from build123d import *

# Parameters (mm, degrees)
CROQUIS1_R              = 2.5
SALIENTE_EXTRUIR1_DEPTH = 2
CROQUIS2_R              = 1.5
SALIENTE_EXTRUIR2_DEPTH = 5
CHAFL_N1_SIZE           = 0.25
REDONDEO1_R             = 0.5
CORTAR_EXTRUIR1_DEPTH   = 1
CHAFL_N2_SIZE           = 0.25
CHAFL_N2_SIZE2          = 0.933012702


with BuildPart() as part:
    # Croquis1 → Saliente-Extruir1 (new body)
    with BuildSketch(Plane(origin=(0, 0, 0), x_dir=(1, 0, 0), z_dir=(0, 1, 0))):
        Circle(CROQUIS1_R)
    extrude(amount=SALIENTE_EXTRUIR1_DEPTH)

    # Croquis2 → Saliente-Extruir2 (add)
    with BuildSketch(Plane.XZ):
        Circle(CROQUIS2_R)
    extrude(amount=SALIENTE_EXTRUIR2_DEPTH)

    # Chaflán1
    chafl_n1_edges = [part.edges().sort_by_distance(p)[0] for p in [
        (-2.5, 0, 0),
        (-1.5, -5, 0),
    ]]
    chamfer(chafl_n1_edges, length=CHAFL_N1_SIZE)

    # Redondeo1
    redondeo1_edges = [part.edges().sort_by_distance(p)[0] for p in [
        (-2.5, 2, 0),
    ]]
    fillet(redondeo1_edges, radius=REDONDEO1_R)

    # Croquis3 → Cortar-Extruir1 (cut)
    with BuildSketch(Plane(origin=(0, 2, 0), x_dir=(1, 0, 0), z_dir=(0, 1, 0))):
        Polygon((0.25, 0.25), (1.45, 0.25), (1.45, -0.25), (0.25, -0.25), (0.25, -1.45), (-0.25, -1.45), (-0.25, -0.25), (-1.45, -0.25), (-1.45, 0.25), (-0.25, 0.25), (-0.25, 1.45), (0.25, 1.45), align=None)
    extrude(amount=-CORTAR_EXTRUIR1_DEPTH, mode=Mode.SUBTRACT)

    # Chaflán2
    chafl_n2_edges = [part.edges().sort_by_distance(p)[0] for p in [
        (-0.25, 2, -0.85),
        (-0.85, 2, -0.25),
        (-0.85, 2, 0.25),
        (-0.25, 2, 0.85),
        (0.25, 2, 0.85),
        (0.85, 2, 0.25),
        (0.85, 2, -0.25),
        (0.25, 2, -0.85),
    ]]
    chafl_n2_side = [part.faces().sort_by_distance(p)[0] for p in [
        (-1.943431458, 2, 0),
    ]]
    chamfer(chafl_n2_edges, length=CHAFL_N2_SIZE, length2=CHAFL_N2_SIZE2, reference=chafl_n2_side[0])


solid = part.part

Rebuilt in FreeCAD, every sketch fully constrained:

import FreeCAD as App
import Part
import Sketcher

V = App.Vector


def edges_at(feature, points):
    """Names of the edges that pass closest to the given points."""
    edges = feature.Shape.Edges
    near = lambda p: min(range(len(edges)), key=lambda i: edges[i].distToShape(Part.Vertex(*p))[0])
    return sorted({f"Edge{near(p) + 1}" for p in points})


def add_polygon(sketch, points):
    """Adds a closed chain of lines whose ends are joined by coincident constraints."""
    first, n = sketch.GeometryCount, len(points)
    for a, b in zip(points, points[1:] + points[:1]):
        sketch.addGeometry(Part.LineSegment(App.Vector(*a, 0), App.Vector(*b, 0)), False)
    for i in range(n):
        sketch.addConstraint(Sketcher.Constraint("Coincident", first + i, 2, first + (i + 1) % n, 1))

doc = App.newDocument("Part")
body = doc.addObject("PartDesign::Body", "Body")

# Sketch on XZ plane
sketch1 = body.newObject("Sketcher::SketchObject", "Sketch")
sketch1.AttachmentSupport = (doc.getObject("XZ_Plane"), [""])
sketch1.MapMode = "FlatFace"
sketch1.addGeometry(Part.Circle(V(0, 0, 0), V(0, 0, 1), 2.5), False)
sketch1.addConstraint([
    Sketcher.Constraint("Coincident", 0, 3, -1, 1),
    Sketcher.Constraint("Diameter", 0, 5.0),
])
pad1 = body.newObject("PartDesign::Pad", "Pad")
pad1.Profile = sketch1
pad1.Length = 2
pad1.Reversed = True

# Sketch on XZ plane
sketch2 = body.newObject("Sketcher::SketchObject", "Sketch001")
sketch2.AttachmentSupport = (doc.getObject("XZ_Plane"), [""])
sketch2.MapMode = "FlatFace"
sketch2.addGeometry(Part.Circle(V(0, 0, 0), V(0, 0, 1), 1.5), False)
sketch2.addConstraint([
    Sketcher.Constraint("Coincident", 0, 3, -1, 1),
    Sketcher.Constraint("Diameter", 0, 3.0),
])
pad2 = body.newObject("PartDesign::Pad", "Pad001")
pad2.Profile = sketch2
pad2.Length = 5
doc.recompute()

chamfer = body.newObject("PartDesign::Chamfer", "Chamfer")
chamfer.Base = (pad2, edges_at(pad2, [(-2.5, 0, 0), (-1.5, -5, 0)]))
chamfer.Size = 0.25
doc.recompute()

fillet = body.newObject("PartDesign::Fillet", "Fillet")
fillet.Base = (chamfer, edges_at(chamfer, [(-2.5, 2, 0)]))
fillet.Radius = 0.5

# Sketch on XZ plane
sketch3 = body.newObject("Sketcher::SketchObject", "Sketch002")
sketch3.AttachmentSupport = (doc.getObject("XZ_Plane"), [""])
sketch3.MapMode = "FlatFace"
sketch3.AttachmentOffset = App.Placement(V(0, 0, -2), App.Rotation())
add_polygon(sketch3, [(1.4, -0.2), (0.2, -0.2), (0.2, -1.4), (-0.2, -1.4), (-0.2, -0.2), (-1.4, -0.2), (-1.4, 0.2), (-0.2, 0.2), (-0.2, 1.4), (0.2, 1.4), (0.2, 0.2), (1.4, 0.2)])  # lines 0-11
sketch3.addConstraint([
    Sketcher.Constraint("Horizontal", 0),
    Sketcher.Constraint("Vertical", 1),
    Sketcher.Constraint("Horizontal", 2),
    Sketcher.Constraint("Vertical", 3),
    Sketcher.Constraint("Horizontal", 4),
    Sketcher.Constraint("Vertical", 5),
    Sketcher.Constraint("Horizontal", 6),
    Sketcher.Constraint("Vertical", 7),
    Sketcher.Constraint("Horizontal", 8),
    Sketcher.Constraint("Vertical", 9),
    Sketcher.Constraint("Horizontal", 10),
    Sketcher.Constraint("Vertical", 11),
    Sketcher.Constraint("Symmetric", 0, 2, 6, 2, -1, 1),
    Sketcher.Constraint("Symmetric", 2, 2, 8, 2, -1, 1),
    Sketcher.Constraint("Symmetric", 4, 2, 10, 2, -1, 1),
    Sketcher.Constraint("Symmetric", 0, 2, 3, 2, -2),
    Sketcher.Constraint("Equal", 10, 1),
    Sketcher.Constraint("Equal", 8, 5),
    Sketcher.Constraint("DistanceX", 0, 2, 0, 1, 1.2),
    Sketcher.Constraint("DistanceX", 2, 2, 2, 1, 0.5),
])
pocket1 = body.newObject("PartDesign::Pocket", "Pocket")
pocket1.Profile = sketch3
pocket1.Length = 1
pocket1.Reversed = True
doc.recompute()

chamfer2 = body.newObject("PartDesign::Chamfer", "Chamfer001")
chamfer2.Base = (pocket1, edges_at(pocket1, [
    (-0.25, 2, -0.85),
    (-0.85, 2, -0.25),
    (-0.85, 2, 0.25),
    (-0.25, 2, 0.85),
    (0.25, 2, 0.85),
    (0.85, 2, 0.25),
    (0.85, 2, -0.25),
    (0.25, 2, -0.85),
]))
chamfer2.ChamferType = "Two distances"
chamfer2.Size = 0.25
chamfer2.Size2 = 0.933013

doc.recompute()
